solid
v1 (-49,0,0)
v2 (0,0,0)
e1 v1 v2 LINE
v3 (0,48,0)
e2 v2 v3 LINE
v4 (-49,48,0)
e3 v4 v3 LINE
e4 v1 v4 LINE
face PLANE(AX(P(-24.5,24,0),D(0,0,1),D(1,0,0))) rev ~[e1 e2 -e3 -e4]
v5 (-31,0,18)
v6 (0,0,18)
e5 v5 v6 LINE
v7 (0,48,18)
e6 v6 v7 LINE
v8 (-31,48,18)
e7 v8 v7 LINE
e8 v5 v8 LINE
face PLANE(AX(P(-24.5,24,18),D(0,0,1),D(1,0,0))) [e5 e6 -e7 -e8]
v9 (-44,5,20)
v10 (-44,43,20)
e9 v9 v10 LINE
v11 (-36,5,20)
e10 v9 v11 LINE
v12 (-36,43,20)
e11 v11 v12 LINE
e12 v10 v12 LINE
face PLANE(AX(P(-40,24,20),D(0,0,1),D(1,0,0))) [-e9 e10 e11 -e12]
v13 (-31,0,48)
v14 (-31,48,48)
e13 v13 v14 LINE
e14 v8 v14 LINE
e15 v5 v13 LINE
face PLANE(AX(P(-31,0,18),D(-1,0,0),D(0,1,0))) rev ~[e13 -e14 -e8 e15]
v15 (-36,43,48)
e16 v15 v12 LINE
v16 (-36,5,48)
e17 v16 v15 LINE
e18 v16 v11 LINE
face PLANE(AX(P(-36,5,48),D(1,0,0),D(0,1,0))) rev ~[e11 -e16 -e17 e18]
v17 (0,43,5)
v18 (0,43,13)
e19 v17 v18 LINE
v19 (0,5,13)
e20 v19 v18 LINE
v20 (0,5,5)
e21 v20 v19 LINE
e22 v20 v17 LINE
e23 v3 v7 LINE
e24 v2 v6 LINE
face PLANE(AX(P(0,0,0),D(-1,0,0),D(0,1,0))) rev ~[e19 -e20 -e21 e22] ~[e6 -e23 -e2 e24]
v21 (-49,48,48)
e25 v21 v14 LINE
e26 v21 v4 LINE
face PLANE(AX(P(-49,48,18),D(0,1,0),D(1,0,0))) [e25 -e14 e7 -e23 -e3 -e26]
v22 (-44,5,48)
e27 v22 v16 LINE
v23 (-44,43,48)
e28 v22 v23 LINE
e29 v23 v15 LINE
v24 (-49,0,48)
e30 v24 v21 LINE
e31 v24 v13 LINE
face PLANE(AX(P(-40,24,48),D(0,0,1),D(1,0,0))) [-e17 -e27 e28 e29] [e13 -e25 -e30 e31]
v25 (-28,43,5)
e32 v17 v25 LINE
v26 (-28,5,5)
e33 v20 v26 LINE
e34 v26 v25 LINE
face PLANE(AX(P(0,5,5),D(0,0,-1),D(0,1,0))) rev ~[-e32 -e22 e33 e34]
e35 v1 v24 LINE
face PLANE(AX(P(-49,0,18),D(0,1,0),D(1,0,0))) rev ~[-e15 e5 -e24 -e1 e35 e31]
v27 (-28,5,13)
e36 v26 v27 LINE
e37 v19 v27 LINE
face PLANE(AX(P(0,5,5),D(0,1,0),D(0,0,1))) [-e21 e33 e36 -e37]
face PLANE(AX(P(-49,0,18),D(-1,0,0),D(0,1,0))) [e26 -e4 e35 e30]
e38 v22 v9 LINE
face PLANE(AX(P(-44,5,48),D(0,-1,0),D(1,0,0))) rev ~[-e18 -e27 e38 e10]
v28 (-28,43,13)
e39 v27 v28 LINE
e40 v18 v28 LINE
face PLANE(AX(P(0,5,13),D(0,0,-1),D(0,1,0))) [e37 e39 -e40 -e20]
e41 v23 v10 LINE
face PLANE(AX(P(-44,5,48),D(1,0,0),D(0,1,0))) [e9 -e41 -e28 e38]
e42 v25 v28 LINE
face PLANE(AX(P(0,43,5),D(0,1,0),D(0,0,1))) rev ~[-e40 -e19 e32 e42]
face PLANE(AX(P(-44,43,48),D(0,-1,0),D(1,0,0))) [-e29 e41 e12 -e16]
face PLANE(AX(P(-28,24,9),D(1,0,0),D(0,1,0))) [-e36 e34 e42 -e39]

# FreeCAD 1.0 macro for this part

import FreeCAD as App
import Part
import Sketcher
Q = App.Units.Quantity


def add_polygon(sketch, points):
    """Adds a closed chain of lines whose ends are joined by coincident constraints."""
    first, n = sketch.GeometryCount, len(points)
    for a, b in zip(points, points[1:] + points[:1]):
        sketch.addGeometry(Part.LineSegment(App.Vector(*a, 0), App.Vector(*b, 0)), False)
    for i in range(n):
        sketch.addConstraint(Sketcher.Constraint("Coincident", first + i, 2, first + (i + 1) % n, 1))

doc = App.newDocument("Part")
body = doc.addObject("PartDesign::Body", "Body")

sketch1 = body.newObject("Sketcher::SketchObject", "Sketch")
sketch1.AttachmentSupport = (doc.getObject("XY_Plane"), [""])
sketch1.MapMode = "FlatFace"
add_polygon(sketch1, [(-49, 48), (-49, 0), (0, 0), (0, 48)])
sketch1.addConstraint(Sketcher.Constraint("Vertical", 0))
sketch1.addConstraint(Sketcher.Constraint("Horizontal", 1))
sketch1.addConstraint(Sketcher.Constraint("Vertical", 2))
sketch1.addConstraint(Sketcher.Constraint("Horizontal", 3))
sketch1.addConstraint(Sketcher.Constraint("Coincident", 1, 2, -1, 1))
sketch1.addConstraint(Sketcher.Constraint("DistanceX", 1, 1, 1, 2, Q("49 mm")))
sketch1.addConstraint(Sketcher.Constraint("DistanceY", 0, 2, 0, 1, Q("48 mm")))
pad1 = body.newObject("PartDesign::Pad", "Pad")
pad1.Profile = sketch1
pad1.Length = 18

sketch2 = body.newObject("Sketcher::SketchObject", "Sketch001")
sketch2.AttachmentSupport = (doc.getObject("YZ_Plane"), [""])
sketch2.MapMode = "FlatFace"
add_polygon(sketch2, [(5, 13), (5, 5), (43, 5), (43, 13)])
sketch2.addConstraint(Sketcher.Constraint("Vertical", 0))
sketch2.addConstraint(Sketcher.Constraint("Horizontal", 1))
sketch2.addConstraint(Sketcher.Constraint("Vertical", 2))
sketch2.addConstraint(Sketcher.Constraint("Horizontal", 3))
sketch2.addConstraint(Sketcher.Constraint("DistanceX", 1, 1, 1, 2, Q("38 mm")))
sketch2.addConstraint(Sketcher.Constraint("DistanceY", 0, 2, 0, 1, Q("8 mm")))
sketch2.addConstraint(Sketcher.Constraint("DistanceX", -1, 1, 0, 2, Q("5 mm")))
sketch2.addConstraint(Sketcher.Constraint("DistanceY", -1, 1, 0, 2, Q("5 mm")))
pocket1 = body.newObject("PartDesign::Pocket", "Pocket")
pocket1.Profile = sketch2
pocket1.Length = 28

sketch3 = body.newObject("Sketcher::SketchObject", "Sketch002")
sketch3.AttachmentSupport = (doc.getObject("XY_Plane"), [""])
sketch3.MapMode = "FlatFace"
sketch3.AttachmentOffset = App.Placement(App.Vector(0, 0, 18), App.Rotation())
add_polygon(sketch3, [(-49, 48), (-49, 0), (-31, 0), (-31, 48)])
sketch3.addConstraint(Sketcher.Constraint("Vertical", 0))
sketch3.addConstraint(Sketcher.Constraint("Horizontal", 1))
sketch3.addConstraint(Sketcher.Constraint("Vertical", 2))
sketch3.addConstraint(Sketcher.Constraint("Horizontal", 3))
sketch3.addConstraint(Sketcher.Constraint("PointOnObject", 0, 2, -1))
sketch3.addConstraint(Sketcher.Constraint("DistanceX", 1, 1, 1, 2, Q("18 mm")))
sketch3.addConstraint(Sketcher.Constraint("DistanceY", 0, 2, 0, 1, Q("48 mm")))
sketch3.addConstraint(Sketcher.Constraint("DistanceX", 0, 2, -1, 1, Q("49 mm")))
pad2 = body.newObject("PartDesign::Pad", "Pad001")
pad2.Profile = sketch3
pad2.Length = 30

sketch4 = body.newObject("Sketcher::SketchObject", "Sketch003")
sketch4.AttachmentSupport = (doc.getObject("XY_Plane"), [""])
sketch4.MapMode = "FlatFace"
sketch4.AttachmentOffset = App.Placement(App.Vector(0, 0, 48), App.Rotation())
add_polygon(sketch4, [(-44, 43), (-44, 5), (-36, 5), (-36, 43)])
sketch4.addConstraint(Sketcher.Constraint("Vertical", 0))
sketch4.addConstraint(Sketcher.Constraint("Horizontal", 1))
sketch4.addConstraint(Sketcher.Constraint("Vertical", 2))
sketch4.addConstraint(Sketcher.Constraint("Horizontal", 3))
sketch4.addConstraint(Sketcher.Constraint("DistanceX", 1, 1, 1, 2, Q("8 mm")))
sketch4.addConstraint(Sketcher.Constraint("DistanceY", 0, 2, 0, 1, Q("38 mm")))
sketch4.addConstraint(Sketcher.Constraint("DistanceX", 0, 2, -1, 1, Q("44 mm")))
sketch4.addConstraint(Sketcher.Constraint("DistanceY", -1, 1, 0, 2, Q("5 mm")))
pocket2 = body.newObject("PartDesign::Pocket", "Pocket001")
pocket2.Profile = sketch4
pocket2.Length = 28

doc.recompute()
